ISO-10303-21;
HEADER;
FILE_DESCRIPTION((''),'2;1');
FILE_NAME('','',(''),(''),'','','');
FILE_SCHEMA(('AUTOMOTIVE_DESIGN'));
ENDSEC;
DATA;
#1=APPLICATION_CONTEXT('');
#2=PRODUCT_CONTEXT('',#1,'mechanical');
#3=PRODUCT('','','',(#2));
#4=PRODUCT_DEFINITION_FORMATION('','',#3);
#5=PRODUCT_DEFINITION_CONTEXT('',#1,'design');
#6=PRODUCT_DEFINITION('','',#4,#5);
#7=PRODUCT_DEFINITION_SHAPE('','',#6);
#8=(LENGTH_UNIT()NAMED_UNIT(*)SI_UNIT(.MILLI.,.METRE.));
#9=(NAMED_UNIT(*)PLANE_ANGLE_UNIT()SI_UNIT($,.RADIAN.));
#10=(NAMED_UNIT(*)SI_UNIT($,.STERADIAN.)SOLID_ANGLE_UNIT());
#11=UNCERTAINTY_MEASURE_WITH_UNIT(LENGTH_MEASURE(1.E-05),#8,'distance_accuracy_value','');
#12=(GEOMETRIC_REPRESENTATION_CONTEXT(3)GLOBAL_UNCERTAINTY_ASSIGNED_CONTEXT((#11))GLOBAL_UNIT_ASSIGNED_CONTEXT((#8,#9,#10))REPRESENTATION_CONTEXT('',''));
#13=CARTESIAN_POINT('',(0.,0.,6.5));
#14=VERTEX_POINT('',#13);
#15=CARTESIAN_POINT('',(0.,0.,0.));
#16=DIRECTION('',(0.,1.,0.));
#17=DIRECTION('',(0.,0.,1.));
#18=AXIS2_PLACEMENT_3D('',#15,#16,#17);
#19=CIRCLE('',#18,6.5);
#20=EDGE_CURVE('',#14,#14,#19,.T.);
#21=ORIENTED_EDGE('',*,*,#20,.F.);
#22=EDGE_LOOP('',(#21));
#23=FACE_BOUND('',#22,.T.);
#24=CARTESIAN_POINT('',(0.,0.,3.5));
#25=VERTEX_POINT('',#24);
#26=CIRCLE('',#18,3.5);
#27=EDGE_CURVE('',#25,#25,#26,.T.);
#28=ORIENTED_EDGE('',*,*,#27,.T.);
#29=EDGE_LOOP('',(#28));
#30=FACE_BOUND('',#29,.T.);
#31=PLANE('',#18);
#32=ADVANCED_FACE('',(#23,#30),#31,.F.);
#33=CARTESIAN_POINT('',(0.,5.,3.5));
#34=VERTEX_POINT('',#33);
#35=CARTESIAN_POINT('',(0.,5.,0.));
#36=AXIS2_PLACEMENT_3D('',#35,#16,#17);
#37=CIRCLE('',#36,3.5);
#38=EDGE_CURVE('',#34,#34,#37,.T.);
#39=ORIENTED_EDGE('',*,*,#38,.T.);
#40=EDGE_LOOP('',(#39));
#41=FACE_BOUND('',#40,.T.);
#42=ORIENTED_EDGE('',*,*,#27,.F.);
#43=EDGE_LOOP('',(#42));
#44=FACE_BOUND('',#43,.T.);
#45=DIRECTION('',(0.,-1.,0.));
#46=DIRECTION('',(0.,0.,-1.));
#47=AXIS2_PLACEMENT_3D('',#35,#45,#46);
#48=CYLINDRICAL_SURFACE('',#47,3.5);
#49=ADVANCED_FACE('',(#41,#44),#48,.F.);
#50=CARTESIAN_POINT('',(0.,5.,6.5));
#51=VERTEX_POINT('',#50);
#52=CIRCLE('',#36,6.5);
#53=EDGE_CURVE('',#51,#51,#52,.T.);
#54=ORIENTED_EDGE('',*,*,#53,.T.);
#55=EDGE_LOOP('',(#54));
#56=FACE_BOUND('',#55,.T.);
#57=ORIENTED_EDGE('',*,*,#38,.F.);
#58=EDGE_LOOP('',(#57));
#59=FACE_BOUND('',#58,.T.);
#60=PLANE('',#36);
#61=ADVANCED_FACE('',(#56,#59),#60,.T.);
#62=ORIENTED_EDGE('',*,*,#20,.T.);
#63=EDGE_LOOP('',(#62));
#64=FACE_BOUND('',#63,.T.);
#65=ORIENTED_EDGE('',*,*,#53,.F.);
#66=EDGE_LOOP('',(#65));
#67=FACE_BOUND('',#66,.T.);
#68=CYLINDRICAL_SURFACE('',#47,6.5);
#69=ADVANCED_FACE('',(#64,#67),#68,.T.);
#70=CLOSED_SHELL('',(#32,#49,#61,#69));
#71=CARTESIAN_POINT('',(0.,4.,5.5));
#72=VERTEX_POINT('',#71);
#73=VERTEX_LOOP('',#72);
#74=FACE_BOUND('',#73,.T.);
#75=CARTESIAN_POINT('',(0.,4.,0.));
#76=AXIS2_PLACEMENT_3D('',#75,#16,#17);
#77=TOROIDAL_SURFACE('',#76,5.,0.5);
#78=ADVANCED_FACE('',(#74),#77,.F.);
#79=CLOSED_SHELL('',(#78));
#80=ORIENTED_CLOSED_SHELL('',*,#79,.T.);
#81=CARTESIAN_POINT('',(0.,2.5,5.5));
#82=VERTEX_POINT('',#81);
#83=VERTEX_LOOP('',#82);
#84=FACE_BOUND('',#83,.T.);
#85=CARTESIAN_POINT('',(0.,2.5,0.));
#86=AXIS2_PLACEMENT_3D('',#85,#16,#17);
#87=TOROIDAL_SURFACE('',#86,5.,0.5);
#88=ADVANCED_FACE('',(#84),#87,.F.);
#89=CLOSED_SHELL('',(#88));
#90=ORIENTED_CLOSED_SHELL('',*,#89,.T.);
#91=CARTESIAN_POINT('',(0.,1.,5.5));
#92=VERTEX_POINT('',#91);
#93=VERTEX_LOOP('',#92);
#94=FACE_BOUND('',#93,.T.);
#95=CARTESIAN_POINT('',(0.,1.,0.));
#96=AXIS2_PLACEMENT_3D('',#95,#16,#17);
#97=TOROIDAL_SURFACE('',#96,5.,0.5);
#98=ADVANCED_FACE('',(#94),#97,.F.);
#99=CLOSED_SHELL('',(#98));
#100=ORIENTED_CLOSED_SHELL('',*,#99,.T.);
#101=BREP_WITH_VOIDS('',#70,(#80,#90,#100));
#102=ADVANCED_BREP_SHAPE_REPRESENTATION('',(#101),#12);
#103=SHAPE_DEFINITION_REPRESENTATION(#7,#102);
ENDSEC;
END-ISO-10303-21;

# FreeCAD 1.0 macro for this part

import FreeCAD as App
import Part
import Sketcher
Q = App.Units.Quantity

doc = App.newDocument("Part")
body = doc.addObject("PartDesign::Body", "Body")

sketch1 = body.newObject("Sketcher::SketchObject", "Sketch")
sketch1.AttachmentSupport = (doc.getObject("XZ_Plane"), [""])
sketch1.MapMode = "FlatFace"
sketch1.addGeometry(Part.Circle(App.Vector(0, 0, 0), App.Vector(0, 0, 1), 6.5), False)
sketch1.addGeometry(Part.Circle(App.Vector(0, 0, 0), App.Vector(0, 0, 1), 3.5), False)
sketch1.addConstraint(Sketcher.Constraint("Coincident", 0, 3, -1, 1))
sketch1.addConstraint(Sketcher.Constraint("Coincident", 1, 3, -1, 1))
sketch1.addConstraint(Sketcher.Constraint("Diameter", 0, Q("13 mm")))
sketch1.addConstraint(Sketcher.Constraint("Diameter", 1, Q("7 mm")))
pad1 = body.newObject("PartDesign::Pad", "Pad")
pad1.Profile = sketch1
pad1.Length = 5
pad1.Reversed = True

sketch2 = body.newObject("Sketcher::SketchObject", "Sketch001")
sketch2.AttachmentSupport = (doc.getObject("YZ_Plane"), [""])
sketch2.MapMode = "FlatFace"
sketch2.addGeometry(Part.Circle(App.Vector(4, 5, 0), App.Vector(0, 0, 1), 0.5), False)
sketch2.addGeometry(Part.Circle(App.Vector(2.5, 5, 0), App.Vector(0, 0, 1), 0.5), False)
sketch2.addGeometry(Part.Circle(App.Vector(1, 5, 0), App.Vector(0, 0, 1), 0.5), False)
sketch2.addConstraint(Sketcher.Constraint("Equal", 0, 1))
sketch2.addConstraint(Sketcher.Constraint("Equal", 1, 2))
sketch2.addConstraint(Sketcher.Constraint("Horizontal", 0, 3, 1, 3))
sketch2.addConstraint(Sketcher.Constraint("Horizontal", 1, 3, 2, 3))
sketch2.addConstraint(Sketcher.Constraint("Diameter", 0, Q("1 mm")))
sketch2.addConstraint(Sketcher.Constraint("DistanceX", -1, 1, 0, 3, Q("4 mm")))
sketch2.addConstraint(Sketcher.Constraint("DistanceY", -1, 1, 0, 3, Q("5 mm")))
sketch2.addConstraint(Sketcher.Constraint("DistanceX", -1, 1, 2, 3, Q("1 mm")))
sketch2.addConstraint(Sketcher.Constraint("DistanceX", -1, 1, 1, 3, Q("2.5 mm")))
groove = body.newObject("PartDesign::Groove", "Groove")
groove.Profile = sketch2
groove.ReferenceAxis = (sketch2, ["H_Axis"])
groove.Angle = 360

doc.recompute()
